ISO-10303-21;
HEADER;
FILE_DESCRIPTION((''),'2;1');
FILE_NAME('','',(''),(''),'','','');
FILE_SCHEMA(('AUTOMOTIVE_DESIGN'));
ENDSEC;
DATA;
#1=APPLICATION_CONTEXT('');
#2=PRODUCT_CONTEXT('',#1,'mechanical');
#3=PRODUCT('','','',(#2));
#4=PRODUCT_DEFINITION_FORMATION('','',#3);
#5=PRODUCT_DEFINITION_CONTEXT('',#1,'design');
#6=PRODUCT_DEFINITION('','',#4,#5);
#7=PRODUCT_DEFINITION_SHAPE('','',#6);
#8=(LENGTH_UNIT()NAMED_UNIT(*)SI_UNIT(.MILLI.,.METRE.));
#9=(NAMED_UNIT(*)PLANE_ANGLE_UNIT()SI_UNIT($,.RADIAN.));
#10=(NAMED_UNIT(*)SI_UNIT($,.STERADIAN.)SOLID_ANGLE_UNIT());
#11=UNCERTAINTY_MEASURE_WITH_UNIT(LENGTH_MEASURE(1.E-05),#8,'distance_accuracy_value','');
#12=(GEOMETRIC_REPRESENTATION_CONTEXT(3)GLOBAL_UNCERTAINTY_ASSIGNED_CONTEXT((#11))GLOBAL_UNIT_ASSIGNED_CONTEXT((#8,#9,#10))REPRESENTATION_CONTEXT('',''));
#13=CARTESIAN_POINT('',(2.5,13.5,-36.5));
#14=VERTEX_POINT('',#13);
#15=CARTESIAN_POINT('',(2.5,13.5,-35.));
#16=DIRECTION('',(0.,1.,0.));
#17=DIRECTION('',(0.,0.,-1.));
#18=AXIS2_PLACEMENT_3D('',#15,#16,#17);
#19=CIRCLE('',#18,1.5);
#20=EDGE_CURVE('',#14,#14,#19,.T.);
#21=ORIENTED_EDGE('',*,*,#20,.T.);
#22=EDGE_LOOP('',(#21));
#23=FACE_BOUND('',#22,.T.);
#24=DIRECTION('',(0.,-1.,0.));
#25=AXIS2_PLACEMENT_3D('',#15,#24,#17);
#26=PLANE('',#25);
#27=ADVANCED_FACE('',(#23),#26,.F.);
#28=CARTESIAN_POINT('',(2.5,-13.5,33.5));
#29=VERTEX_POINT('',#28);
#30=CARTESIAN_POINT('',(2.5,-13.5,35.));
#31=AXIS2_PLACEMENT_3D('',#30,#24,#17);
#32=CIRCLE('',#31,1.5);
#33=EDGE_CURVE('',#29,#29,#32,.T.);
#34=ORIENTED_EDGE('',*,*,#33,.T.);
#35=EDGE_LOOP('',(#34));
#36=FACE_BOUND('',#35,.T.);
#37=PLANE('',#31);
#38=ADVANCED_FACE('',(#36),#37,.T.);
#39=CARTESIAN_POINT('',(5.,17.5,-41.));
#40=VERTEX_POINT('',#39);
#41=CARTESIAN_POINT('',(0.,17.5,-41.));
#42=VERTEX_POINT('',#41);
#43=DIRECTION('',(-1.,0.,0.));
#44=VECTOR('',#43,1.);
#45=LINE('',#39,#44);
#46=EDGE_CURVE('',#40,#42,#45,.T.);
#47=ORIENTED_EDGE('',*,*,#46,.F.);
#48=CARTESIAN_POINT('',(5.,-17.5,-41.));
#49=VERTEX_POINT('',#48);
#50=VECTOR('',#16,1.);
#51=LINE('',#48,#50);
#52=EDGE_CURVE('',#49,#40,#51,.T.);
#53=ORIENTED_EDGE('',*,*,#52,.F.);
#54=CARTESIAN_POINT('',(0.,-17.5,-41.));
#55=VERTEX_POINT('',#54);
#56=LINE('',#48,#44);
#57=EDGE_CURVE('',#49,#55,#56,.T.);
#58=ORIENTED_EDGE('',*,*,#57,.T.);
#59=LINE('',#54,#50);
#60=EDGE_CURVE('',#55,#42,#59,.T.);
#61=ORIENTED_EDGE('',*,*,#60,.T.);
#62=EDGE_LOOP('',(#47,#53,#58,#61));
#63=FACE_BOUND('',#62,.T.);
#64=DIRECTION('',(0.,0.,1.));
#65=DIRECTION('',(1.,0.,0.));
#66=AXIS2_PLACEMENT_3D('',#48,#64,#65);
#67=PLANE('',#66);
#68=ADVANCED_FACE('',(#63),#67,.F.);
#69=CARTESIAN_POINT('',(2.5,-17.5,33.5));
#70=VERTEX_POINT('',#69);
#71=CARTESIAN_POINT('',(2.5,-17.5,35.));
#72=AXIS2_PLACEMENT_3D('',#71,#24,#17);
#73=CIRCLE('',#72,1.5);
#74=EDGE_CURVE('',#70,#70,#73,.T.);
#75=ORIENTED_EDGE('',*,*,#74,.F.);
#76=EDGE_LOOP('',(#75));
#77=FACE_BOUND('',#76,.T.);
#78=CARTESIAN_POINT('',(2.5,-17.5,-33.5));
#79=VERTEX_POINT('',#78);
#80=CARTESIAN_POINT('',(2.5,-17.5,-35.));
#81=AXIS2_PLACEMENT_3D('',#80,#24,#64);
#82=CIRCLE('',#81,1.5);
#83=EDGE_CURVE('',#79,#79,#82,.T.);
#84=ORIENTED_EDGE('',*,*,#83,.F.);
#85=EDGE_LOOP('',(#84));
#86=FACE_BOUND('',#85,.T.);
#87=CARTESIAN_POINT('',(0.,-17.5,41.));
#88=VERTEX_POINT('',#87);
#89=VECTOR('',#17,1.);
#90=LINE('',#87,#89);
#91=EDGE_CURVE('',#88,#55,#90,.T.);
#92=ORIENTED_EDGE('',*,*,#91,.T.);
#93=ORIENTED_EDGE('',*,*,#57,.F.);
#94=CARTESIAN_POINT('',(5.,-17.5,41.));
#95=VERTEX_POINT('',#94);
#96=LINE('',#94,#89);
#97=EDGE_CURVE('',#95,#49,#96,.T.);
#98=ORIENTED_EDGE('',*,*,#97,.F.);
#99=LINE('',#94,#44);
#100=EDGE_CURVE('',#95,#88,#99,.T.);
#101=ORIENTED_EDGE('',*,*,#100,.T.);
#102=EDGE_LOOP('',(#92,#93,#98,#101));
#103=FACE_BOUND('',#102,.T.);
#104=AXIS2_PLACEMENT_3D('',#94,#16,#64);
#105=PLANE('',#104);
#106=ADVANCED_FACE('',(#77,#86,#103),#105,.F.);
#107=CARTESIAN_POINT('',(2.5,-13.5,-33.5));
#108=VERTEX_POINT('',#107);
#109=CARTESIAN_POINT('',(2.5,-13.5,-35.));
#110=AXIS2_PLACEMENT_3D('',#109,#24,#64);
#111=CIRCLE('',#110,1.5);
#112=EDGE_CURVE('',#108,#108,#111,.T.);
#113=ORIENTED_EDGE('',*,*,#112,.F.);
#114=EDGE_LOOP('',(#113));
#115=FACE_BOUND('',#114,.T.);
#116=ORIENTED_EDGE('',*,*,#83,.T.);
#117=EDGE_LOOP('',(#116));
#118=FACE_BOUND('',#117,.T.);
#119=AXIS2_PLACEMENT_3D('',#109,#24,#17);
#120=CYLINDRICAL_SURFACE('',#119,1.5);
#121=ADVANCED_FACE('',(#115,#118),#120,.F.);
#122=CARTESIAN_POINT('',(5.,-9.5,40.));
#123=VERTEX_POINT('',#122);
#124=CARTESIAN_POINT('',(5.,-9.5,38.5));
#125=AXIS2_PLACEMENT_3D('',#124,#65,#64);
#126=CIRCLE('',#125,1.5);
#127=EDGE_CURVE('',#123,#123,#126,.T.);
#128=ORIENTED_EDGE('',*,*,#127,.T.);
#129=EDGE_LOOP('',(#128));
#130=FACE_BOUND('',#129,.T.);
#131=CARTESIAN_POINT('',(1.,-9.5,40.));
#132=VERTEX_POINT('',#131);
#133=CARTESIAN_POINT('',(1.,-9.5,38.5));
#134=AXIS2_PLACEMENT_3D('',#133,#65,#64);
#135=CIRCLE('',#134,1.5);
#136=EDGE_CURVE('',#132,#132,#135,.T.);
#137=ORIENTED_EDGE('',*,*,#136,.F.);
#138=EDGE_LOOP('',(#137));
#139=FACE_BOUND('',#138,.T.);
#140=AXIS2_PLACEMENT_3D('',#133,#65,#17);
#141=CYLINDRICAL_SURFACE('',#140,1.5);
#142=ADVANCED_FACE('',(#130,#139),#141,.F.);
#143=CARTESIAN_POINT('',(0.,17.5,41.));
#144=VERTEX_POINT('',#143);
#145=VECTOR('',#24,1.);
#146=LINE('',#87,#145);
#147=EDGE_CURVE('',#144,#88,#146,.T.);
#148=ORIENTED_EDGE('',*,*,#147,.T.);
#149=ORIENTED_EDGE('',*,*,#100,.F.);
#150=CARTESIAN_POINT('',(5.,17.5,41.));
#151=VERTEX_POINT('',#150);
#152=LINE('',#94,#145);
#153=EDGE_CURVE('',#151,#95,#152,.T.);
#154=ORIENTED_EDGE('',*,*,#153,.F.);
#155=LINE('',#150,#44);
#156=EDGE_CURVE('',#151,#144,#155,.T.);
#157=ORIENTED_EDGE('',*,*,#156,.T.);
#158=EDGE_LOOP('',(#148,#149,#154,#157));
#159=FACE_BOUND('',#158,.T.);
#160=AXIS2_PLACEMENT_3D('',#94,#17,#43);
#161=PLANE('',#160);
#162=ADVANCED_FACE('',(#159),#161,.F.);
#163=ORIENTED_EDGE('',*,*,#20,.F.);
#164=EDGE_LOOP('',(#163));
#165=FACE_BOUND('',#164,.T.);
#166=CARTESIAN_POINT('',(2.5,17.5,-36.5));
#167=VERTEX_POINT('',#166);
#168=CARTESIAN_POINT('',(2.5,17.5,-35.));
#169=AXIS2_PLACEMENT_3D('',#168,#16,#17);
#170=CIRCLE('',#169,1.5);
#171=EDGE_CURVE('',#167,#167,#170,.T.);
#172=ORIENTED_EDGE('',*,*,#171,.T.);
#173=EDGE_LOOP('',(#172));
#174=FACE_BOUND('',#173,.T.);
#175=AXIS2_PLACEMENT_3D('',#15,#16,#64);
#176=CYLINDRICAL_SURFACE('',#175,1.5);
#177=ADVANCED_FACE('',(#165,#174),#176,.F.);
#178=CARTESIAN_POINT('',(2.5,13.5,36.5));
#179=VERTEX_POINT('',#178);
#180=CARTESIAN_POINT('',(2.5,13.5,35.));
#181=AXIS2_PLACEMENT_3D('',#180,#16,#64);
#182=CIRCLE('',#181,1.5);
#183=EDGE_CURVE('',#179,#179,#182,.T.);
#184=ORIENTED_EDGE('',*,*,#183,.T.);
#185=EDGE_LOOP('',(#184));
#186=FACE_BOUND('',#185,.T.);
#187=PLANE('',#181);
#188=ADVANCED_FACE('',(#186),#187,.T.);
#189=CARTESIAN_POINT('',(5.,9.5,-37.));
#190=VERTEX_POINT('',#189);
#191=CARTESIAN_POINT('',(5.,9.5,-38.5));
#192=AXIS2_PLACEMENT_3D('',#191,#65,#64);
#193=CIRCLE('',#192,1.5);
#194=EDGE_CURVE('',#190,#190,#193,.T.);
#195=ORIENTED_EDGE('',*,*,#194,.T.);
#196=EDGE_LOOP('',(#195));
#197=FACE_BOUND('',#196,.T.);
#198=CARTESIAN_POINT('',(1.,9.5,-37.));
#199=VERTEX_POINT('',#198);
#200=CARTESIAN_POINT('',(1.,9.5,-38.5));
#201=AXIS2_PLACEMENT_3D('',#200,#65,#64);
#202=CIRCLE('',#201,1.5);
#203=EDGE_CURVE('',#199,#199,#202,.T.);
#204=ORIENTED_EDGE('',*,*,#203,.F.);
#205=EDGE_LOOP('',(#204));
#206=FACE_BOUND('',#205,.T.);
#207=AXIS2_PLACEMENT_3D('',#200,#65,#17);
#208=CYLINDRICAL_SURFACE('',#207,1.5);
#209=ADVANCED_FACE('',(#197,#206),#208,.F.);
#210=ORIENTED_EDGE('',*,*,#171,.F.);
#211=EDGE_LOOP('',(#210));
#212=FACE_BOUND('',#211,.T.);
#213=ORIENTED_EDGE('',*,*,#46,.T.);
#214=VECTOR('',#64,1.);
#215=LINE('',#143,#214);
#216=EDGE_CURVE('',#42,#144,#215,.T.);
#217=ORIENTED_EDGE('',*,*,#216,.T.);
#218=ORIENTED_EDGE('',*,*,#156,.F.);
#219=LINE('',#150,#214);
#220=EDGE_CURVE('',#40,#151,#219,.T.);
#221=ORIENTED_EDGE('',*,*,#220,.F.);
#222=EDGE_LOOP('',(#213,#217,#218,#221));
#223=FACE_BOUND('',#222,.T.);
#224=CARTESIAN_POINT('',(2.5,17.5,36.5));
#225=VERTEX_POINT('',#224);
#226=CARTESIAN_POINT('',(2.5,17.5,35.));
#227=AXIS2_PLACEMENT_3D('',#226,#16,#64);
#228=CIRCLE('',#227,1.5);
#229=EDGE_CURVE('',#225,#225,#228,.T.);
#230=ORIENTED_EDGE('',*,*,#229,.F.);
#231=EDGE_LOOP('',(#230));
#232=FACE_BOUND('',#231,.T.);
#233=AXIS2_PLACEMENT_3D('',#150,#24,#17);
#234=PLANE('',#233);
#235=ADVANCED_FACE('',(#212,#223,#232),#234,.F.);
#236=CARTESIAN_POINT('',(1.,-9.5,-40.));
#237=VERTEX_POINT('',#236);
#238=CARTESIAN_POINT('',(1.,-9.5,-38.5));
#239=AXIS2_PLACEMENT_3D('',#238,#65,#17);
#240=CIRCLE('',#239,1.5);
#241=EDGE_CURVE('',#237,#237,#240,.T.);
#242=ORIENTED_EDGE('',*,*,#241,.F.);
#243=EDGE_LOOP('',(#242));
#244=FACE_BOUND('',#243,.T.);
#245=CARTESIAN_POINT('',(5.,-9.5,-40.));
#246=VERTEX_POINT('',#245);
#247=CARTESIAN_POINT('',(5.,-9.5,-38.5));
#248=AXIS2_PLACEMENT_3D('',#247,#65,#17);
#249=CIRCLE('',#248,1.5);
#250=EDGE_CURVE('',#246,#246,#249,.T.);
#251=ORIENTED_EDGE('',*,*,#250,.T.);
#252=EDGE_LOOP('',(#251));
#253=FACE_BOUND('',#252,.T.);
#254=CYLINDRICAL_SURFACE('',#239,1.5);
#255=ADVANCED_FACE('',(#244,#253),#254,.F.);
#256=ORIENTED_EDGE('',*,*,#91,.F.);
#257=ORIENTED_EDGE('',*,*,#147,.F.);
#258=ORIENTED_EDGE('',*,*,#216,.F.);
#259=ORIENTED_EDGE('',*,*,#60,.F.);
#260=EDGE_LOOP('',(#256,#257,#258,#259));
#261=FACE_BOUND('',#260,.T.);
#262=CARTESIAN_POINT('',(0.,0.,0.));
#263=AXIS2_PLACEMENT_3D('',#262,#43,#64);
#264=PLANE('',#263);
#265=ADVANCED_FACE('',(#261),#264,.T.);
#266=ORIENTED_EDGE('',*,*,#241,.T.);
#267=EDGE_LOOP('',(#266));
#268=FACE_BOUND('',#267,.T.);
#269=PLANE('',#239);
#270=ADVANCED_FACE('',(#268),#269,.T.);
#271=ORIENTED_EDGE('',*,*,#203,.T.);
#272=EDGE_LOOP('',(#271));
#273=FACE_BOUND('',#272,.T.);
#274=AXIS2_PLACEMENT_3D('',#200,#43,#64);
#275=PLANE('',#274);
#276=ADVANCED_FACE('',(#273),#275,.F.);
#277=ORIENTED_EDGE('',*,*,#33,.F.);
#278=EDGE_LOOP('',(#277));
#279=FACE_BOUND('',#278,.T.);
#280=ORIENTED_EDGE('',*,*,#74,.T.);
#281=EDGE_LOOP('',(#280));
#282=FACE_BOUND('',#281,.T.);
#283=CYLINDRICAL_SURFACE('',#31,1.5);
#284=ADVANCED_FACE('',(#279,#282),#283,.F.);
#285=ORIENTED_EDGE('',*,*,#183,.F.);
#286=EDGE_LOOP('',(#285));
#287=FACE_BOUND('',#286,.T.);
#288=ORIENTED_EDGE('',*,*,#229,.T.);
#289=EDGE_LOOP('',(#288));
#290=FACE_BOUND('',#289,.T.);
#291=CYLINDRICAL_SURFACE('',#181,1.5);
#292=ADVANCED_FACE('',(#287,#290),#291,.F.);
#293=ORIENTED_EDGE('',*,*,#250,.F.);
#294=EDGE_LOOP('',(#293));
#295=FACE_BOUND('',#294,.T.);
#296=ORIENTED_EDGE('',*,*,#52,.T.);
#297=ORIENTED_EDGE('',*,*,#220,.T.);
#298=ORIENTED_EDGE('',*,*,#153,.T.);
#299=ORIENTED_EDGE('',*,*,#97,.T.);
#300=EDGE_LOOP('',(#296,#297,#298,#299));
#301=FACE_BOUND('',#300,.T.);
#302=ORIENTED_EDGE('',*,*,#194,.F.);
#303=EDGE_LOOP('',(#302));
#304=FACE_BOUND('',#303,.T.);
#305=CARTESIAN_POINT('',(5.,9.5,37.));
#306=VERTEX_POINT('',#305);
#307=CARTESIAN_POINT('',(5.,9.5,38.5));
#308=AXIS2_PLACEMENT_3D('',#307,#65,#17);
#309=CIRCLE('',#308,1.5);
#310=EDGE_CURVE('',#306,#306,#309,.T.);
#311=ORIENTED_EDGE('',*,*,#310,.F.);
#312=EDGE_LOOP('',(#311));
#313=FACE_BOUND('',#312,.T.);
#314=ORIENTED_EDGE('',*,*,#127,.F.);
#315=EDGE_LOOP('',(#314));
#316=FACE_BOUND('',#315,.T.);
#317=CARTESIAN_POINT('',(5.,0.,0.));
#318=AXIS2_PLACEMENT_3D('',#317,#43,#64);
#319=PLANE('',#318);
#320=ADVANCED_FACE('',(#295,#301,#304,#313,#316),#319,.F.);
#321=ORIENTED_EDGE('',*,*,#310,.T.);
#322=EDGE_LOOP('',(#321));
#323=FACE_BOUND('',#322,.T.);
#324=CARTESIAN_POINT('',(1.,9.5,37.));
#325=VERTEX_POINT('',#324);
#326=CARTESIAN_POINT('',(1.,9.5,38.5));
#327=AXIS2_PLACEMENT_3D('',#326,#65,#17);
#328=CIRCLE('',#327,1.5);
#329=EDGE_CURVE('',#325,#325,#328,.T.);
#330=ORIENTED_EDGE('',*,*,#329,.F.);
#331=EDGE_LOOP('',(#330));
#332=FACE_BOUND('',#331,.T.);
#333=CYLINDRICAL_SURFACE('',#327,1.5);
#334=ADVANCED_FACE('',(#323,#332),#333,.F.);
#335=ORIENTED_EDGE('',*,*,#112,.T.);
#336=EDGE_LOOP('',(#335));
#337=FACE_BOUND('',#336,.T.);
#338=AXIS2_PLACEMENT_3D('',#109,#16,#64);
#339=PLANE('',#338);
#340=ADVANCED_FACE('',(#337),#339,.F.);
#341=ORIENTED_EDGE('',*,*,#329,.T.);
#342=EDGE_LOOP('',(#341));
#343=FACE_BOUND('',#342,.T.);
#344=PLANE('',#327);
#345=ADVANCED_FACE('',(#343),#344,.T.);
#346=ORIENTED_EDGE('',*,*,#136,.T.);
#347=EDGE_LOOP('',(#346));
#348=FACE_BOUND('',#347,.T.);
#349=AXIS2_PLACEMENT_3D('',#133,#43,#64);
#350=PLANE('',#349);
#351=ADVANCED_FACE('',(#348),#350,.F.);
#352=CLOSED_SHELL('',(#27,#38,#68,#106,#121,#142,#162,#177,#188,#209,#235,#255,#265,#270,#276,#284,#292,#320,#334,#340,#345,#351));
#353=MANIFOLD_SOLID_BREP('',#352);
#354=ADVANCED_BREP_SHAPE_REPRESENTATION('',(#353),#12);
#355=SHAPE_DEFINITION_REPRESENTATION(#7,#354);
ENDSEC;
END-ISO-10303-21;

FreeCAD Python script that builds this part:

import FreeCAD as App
import Part
import Sketcher
from FreeCAD import Vector

doc = App.newDocument("Part")
body = doc.addObject("PartDesign::Body", "Body")

sketch1 = body.newObject("Sketcher::SketchObject", "Sketch")
sketch1.AttachmentSupport = (doc.getObject("YZ_Plane"), [""])
sketch1.MapMode = "FlatFace"
sketch1.addGeometry(Part.LineSegment(Vector(17.5, 41, 0), Vector(-17.5, 41, 0)), False)
sketch1.addGeometry(Part.LineSegment(Vector(-17.5, 41, 0), Vector(-17.5, -41, 0)), False)
sketch1.addGeometry(Part.LineSegment(Vector(-17.5, -41, 0), Vector(17.5, -41, 0)), False)
sketch1.addGeometry(Part.LineSegment(Vector(17.5, -41, 0), Vector(17.5, 41, 0)), False)
sketch1.addConstraint(Sketcher.Constraint("Coincident", 0, 2, 1, 1))
sketch1.addConstraint(Sketcher.Constraint("Coincident", 1, 2, 2, 1))
sketch1.addConstraint(Sketcher.Constraint("Coincident", 2, 2, 3, 1))
sketch1.addConstraint(Sketcher.Constraint("Coincident", 3, 2, 0, 1))
sketch1.addConstraint(Sketcher.Constraint("Horizontal", 0))
sketch1.addConstraint(Sketcher.Constraint("Vertical", 1))
sketch1.addConstraint(Sketcher.Constraint("Horizontal", 2))
sketch1.addConstraint(Sketcher.Constraint("Vertical", 3))
sketch1.addConstraint(Sketcher.Constraint("Symmetric", 0, 2, 2, 2, -1, 1))
sketch1.addConstraint(Sketcher.Constraint("DistanceX", 0, 2, 0, 1, 35.0))
sketch1.addConstraint(Sketcher.Constraint("DistanceY", 1, 2, 1, 1, 82.0))
pad1 = body.newObject("PartDesign::Pad", "Pad")
pad1.Profile = sketch1
pad1.Length = 5

sketch2 = body.newObject("Sketcher::SketchObject", "Sketch001")
sketch2.AttachmentSupport = (doc.getObject("YZ_Plane"), [""])
sketch2.MapMode = "FlatFace"
sketch2.AttachmentOffset = App.Placement(Vector(0, 0, 5), App.Rotation())
sketch2.addGeometry(Part.Circle(Vector(9.5, 38.5, 0), Vector(0, 0, 1), 1.5), False)
sketch2.addGeometry(Part.Circle(Vector(-9.5, 38.5, 0), Vector(0, 0, 1), 1.5), False)
sketch2.addGeometry(Part.Circle(Vector(-9.5, -38.5, 0), Vector(0, 0, 1), 1.5), False)
sketch2.addGeometry(Part.Circle(Vector(9.5, -38.5, 0), Vector(0, 0, 1), 1.5), False)
sketch2.addConstraint(Sketcher.Constraint("Equal", 0, 1))
sketch2.addConstraint(Sketcher.Constraint("Equal", 1, 2))
sketch2.addConstraint(Sketcher.Constraint("Equal", 2, 3))
sketch2.addConstraint(Sketcher.Constraint("Symmetric", 0, 3, 2, 3, -1, 1))
sketch2.addConstraint(Sketcher.Constraint("Symmetric", 1, 3, 3, 3, -1, 1))
sketch2.addConstraint(Sketcher.Constraint("Symmetric", 0, 3, 1, 3, -2))
sketch2.addConstraint(Sketcher.Constraint("Diameter", 0, 3.0))
sketch2.addConstraint(Sketcher.Constraint("DistanceX", 1, 3, 0, 3, 19.0))
sketch2.addConstraint(Sketcher.Constraint("DistanceY", 2, 3, 1, 3, 77.0))
pocket1 = body.newObject("PartDesign::Pocket", "Pocket")
pocket1.Profile = sketch2
pocket1.Length = 4

sketch3 = body.newObject("Sketcher::SketchObject", "Sketch002")
sketch3.AttachmentSupport = (doc.getObject("XZ_Plane"), [""])
sketch3.MapMode = "FlatFace"
sketch3.AttachmentOffset = App.Placement(Vector(0, 0, 17.5), App.Rotation())
sketch3.addGeometry(Part.Circle(Vector(2.5, 35, 0), Vector(0, 0, 1), 1.5), False)
sketch3.addGeometry(Part.Circle(Vector(2.5, -35, 0), Vector(0, 0, 1), 1.5), False)
sketch3.addConstraint(Sketcher.Constraint("Equal", 0, 1))
sketch3.addConstraint(Sketcher.Constraint("Symmetric", 0, 3, 1, 3, -1))
sketch3.addConstraint(Sketcher.Constraint("Diameter", 0, 3.0))
sketch3.addConstraint(Sketcher.Constraint("DistanceY", -1, 1, 0, 3, 35.0))
sketch3.addConstraint(Sketcher.Constraint("DistanceX", -1, 1, 0, 3, 2.5))
pocket2 = body.newObject("PartDesign::Pocket", "Pocket001")
pocket2.Profile = sketch3
pocket2.Length = 4

sketch4 = body.newObject("Sketcher::SketchObject", "Sketch003")
sketch4.AttachmentSupport = (doc.getObject("XZ_Plane"), [""])
sketch4.MapMode = "FlatFace"
sketch4.AttachmentOffset = App.Placement(Vector(0, 0, -13.5), App.Rotation())
sketch4.addGeometry(Part.Circle(Vector(2.5, 35, 0), Vector(0, 0, 1), 1.5), False)
sketch4.addGeometry(Part.Circle(Vector(2.5, -35, 0), Vector(0, 0, 1), 1.5), False)
sketch4.addConstraint(Sketcher.Constraint("Equal", 0, 1))
sketch4.addConstraint(Sketcher.Constraint("Symmetric", 0, 3, 1, 3, -1))
sketch4.addConstraint(Sketcher.Constraint("Diameter", 0, 3.0))
sketch4.addConstraint(Sketcher.Constraint("DistanceY", -1, 1, 0, 3, 35.0))
sketch4.addConstraint(Sketcher.Constraint("DistanceX", -1, 1, 0, 3, 2.5))
pocket3 = body.newObject("PartDesign::Pocket", "Pocket002")
pocket3.Profile = sketch4
pocket3.Length = 4

doc.recompute()
